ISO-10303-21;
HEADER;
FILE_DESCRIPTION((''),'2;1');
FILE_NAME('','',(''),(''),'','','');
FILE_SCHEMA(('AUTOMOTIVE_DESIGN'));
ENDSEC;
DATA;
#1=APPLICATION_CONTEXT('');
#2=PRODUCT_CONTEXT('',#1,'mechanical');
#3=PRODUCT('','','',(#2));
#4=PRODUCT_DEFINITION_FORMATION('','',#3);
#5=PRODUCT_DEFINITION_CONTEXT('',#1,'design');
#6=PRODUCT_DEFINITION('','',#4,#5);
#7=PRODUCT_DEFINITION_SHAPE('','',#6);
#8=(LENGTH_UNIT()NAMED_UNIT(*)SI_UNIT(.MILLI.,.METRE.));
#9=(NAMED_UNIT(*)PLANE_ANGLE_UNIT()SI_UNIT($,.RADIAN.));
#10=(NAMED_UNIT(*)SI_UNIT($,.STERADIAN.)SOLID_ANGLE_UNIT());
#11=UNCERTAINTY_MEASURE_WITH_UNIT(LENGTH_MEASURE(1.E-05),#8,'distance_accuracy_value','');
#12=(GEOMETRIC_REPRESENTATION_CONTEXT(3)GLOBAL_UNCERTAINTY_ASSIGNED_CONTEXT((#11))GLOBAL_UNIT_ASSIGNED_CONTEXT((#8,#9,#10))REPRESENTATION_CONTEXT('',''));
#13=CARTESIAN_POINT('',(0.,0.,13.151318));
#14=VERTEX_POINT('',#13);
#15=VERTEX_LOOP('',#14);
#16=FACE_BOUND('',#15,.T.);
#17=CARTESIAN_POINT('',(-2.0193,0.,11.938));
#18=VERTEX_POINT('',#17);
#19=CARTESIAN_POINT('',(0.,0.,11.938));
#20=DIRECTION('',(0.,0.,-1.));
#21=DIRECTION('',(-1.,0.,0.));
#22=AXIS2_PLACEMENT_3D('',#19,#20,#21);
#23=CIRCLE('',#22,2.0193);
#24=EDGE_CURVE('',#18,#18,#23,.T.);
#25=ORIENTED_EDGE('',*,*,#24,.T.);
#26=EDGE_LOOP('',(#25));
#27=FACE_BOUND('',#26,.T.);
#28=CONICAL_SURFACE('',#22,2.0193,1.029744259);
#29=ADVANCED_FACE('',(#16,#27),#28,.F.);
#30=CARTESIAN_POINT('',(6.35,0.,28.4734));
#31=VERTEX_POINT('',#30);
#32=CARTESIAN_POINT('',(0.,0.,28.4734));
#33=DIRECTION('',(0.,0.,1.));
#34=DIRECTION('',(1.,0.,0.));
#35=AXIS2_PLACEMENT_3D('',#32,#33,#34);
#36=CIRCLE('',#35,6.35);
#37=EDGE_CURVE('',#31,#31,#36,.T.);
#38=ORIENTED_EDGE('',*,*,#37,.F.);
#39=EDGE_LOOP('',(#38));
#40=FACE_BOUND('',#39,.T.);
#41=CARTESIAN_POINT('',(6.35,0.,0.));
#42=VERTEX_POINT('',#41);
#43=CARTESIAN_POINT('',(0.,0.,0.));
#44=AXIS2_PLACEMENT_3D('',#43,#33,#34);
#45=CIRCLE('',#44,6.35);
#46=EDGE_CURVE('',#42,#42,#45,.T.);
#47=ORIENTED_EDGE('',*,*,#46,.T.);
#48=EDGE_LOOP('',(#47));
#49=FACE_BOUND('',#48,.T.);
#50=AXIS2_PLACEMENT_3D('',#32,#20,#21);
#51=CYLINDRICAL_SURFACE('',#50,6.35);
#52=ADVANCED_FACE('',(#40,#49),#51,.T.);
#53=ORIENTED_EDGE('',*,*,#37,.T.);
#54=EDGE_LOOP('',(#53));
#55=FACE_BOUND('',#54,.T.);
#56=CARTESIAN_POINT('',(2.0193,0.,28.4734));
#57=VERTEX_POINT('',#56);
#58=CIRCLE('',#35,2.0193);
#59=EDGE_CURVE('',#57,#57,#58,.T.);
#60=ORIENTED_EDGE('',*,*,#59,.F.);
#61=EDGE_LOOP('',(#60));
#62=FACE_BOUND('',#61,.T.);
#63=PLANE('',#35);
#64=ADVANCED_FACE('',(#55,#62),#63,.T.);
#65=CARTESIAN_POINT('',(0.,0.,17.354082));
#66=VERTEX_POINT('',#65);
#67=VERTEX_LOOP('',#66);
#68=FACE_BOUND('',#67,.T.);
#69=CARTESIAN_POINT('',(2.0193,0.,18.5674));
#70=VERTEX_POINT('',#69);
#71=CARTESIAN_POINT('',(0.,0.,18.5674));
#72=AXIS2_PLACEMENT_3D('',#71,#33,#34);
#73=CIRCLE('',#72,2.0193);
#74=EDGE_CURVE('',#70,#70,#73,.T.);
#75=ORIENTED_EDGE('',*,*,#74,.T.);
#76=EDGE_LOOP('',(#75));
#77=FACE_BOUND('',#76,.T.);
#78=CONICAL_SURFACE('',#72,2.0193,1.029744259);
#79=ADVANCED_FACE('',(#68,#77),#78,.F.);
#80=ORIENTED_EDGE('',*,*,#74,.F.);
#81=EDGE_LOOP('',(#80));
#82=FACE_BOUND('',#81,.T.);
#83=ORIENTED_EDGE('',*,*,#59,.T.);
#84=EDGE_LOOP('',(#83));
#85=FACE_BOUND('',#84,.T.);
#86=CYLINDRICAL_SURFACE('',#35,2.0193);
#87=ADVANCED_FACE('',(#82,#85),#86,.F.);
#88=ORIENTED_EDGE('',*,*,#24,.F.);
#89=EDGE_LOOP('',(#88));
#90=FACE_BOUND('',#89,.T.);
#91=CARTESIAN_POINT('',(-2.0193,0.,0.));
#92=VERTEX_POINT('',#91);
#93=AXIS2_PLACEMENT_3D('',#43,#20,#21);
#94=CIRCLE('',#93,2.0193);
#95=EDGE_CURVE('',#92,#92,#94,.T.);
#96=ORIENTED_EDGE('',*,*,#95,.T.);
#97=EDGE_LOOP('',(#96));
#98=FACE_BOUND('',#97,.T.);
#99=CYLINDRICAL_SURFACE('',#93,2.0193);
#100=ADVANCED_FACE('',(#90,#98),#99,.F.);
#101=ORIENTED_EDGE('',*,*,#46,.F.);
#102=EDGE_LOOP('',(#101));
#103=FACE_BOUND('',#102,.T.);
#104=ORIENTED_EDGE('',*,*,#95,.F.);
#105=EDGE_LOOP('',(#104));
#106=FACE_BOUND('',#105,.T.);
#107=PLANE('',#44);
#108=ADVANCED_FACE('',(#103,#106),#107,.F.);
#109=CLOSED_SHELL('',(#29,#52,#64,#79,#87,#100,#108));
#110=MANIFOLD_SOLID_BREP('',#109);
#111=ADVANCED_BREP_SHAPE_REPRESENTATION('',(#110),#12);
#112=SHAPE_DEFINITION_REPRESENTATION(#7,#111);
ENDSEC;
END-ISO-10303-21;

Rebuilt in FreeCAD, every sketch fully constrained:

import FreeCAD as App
import Part
import Sketcher

V = App.Vector
Q = App.Units.Quantity

doc = App.newDocument("Part")
body = doc.addObject("PartDesign::Body", "Body")

# Sketch on XY plane
sketch1 = doc.addObject("Sketcher::SketchObject", "Sketch")
body.addObject(sketch1)
sketch1.AttachmentSupport = (doc.XY_Plane, [""])
sketch1.MapMode = "FlatFace"
sketch1.addGeometry(Part.Circle(V(0, 0, 0), V(0, 0, 1), 6), False)
sketch1.addConstraint([
    Sketcher.Constraint("Coincident", 0, 3, -1, 1),
    Sketcher.Constraint("Diameter", 0, Q("0.5 in")),
])
pad1 = doc.addObject("PartDesign::Pad", "Pad")
body.addObject(pad1)
pad1.Profile = sketch1
pad1.Length = Q("1.121 in")

# Sketch on XY plane
sketch2 = doc.addObject("Sketcher::SketchObject", "Sketch001")
body.addObject(sketch2)
sketch2.AttachmentSupport = (doc.XY_Plane, [""])
sketch2.MapMode = "FlatFace"
sketch2.AttachmentOffset = App.Placement(V(0, 0, 1.121 * 25.4), App.Rotation())
sketch2.addGeometry(Part.Circle(V(0, 0, 0), V(0, 0, 1), 2), False)
sketch2.addConstraint([
    Sketcher.Constraint("Coincident", 0, 3, -1, 1),
    Sketcher.Constraint("Diameter", 0, Q("0.159 in")),
])
doc.recompute()
hole = doc.addObject("PartDesign::Hole", "Hole")
body.addObject(hole)
hole.Profile = sketch2
hole.ThreadType = "None"
hole.Diameter = Q("0.159 in")
hole.DepthType = "Dimension"
hole.Depth = Q("0.39 in")
hole.DrillPoint = "Angled"
hole.DrillPointAngle = 118

# Sketch on XY plane
sketch3 = doc.addObject("Sketcher::SketchObject", "Sketch002")
body.addObject(sketch3)
sketch3.AttachmentSupport = (doc.XY_Plane, [""])
sketch3.MapMode = "FlatFace"
sketch3.addGeometry(Part.Circle(V(0, 0, 0), V(0, 0, 1), 2), False)
sketch3.addConstraint([
    Sketcher.Constraint("Coincident", 0, 3, -1, 1),
    Sketcher.Constraint("Diameter", 0, Q("0.159 in")),
])
doc.recompute()
hole2 = doc.addObject("PartDesign::Hole", "Hole001")
body.addObject(hole2)
hole2.Profile = sketch3
hole2.ThreadType = "None"
hole2.Diameter = Q("0.159 in")
hole2.DepthType = "Dimension"
hole2.Depth = Q("0.47 in")
hole2.DrillPoint = "Angled"
hole2.DrillPointAngle = 118
hole2.Reversed = True

doc.recompute()
